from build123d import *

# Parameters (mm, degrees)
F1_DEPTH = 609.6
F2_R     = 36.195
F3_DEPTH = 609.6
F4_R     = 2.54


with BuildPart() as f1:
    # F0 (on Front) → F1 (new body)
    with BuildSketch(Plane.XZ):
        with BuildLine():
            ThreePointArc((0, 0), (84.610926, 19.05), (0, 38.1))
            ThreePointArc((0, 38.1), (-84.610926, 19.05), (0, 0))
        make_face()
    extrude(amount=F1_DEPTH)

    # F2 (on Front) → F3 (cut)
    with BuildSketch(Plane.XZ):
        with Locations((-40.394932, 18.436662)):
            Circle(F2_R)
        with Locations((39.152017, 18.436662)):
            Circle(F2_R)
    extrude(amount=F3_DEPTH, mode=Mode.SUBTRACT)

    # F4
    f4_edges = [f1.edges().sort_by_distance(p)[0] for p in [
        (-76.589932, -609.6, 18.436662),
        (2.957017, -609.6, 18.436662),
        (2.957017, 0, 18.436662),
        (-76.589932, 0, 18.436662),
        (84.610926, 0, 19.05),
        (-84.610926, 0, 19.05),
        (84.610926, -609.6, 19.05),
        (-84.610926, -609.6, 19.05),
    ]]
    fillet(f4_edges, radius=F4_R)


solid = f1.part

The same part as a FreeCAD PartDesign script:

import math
import FreeCAD as App
import Part
import Sketcher
Q = App.Units.Quantity


def edges_at(feature, points):
    """Names of the edges that pass closest to the given points."""
    edges = feature.Shape.Edges
    near = lambda p: min(range(len(edges)), key=lambda i: edges[i].distToShape(Part.Vertex(*p))[0])
    return sorted({f"Edge{near(p) + 1}" for p in points})

doc = App.newDocument("Part")
body = doc.addObject("PartDesign::Body", "Body")

sketch1 = doc.addObject("Sketcher::SketchObject", "Sketch")
body.addObject(sketch1)
sketch1.AttachmentSupport = (doc.XZ_Plane, [""])
sketch1.MapMode = "FlatFace"
sketch1.addGeometry([
    Part.ArcOfCircle(Part.Circle(App.Vector(40, 19, 0), App.Vector(0, 0, 1), 44), math.radians(-155), math.radians(155)),
    Part.ArcOfCircle(Part.Circle(App.Vector(-40, 19, 0), App.Vector(0, 0, 1), 44), math.radians(25), math.radians(335)),
], False)
sketch1.addConstraint([
    Sketcher.Constraint("Coincident", 0, 1, 1, 2),
    Sketcher.Constraint("Coincident", 1, 1, 0, 2),
    Sketcher.Constraint("Coincident", 0, 1, -1, 1),
    Sketcher.Constraint("Equal", 0, 1),
    Sketcher.Constraint("PointOnObject", 1, 1, -2),
    Sketcher.Constraint("Radius", 0, Q("1.75 in")),
    Sketcher.Constraint("DistanceY", -1, 1, 1, 1, Q("1.5 in")),
])
pad1 = doc.addObject("PartDesign::Pad", "Pad")
body.addObject(pad1)
pad1.Profile = sketch1
pad1.Length = Q("24 in")

sketch2 = doc.addObject("Sketcher::SketchObject", "Sketch001")
body.addObject(sketch2)
sketch2.AttachmentSupport = (doc.XZ_Plane, [""])
sketch2.MapMode = "FlatFace"
sketch2.addGeometry([
    Part.Circle(App.Vector(-40, 18, 0), App.Vector(0, 0, 1), 36),
    Part.Circle(App.Vector(39, 18, 0), App.Vector(0, 0, 1), 36),
], False)
sketch2.addConstraint([
    Sketcher.Constraint("Equal", 0, 1),
    Sketcher.Constraint("Horizontal", 0, 3, 1, 3),
    Sketcher.Constraint("Diameter", 0, Q("2.85 in")),
    Sketcher.Constraint("DistanceX", 0, 3, -1, 1, 40.394932),
    Sketcher.Constraint("DistanceY", -1, 1, 0, 3, 18.436662),
    Sketcher.Constraint("DistanceX", 0, 3, 1, 3, 79.546949),
])
pocket1 = doc.addObject("PartDesign::Pocket", "Pocket")
body.addObject(pocket1)
pocket1.Profile = sketch2
pocket1.Length = Q("24 in")
pocket1.Reversed = True
doc.recompute()

fillet = doc.addObject("PartDesign::Fillet", "Fillet")
body.addObject(fillet)
fillet.Base = (pocket1, edges_at(pocket1, [
    (-76.59, -609.6, 18.437),
    (2.957, -609.6, 18.437),
    (2.957, 0, 18.437),
    (-76.59, 0, 18.437),
    (84.611, 0, 19.05),
    (-84.611, 0, 19.05),
    (84.611, -609.6, 19.05),
    (-84.611, -609.6, 19.05),
]))
fillet.Radius = Q("0.1 in")

doc.recompute()
